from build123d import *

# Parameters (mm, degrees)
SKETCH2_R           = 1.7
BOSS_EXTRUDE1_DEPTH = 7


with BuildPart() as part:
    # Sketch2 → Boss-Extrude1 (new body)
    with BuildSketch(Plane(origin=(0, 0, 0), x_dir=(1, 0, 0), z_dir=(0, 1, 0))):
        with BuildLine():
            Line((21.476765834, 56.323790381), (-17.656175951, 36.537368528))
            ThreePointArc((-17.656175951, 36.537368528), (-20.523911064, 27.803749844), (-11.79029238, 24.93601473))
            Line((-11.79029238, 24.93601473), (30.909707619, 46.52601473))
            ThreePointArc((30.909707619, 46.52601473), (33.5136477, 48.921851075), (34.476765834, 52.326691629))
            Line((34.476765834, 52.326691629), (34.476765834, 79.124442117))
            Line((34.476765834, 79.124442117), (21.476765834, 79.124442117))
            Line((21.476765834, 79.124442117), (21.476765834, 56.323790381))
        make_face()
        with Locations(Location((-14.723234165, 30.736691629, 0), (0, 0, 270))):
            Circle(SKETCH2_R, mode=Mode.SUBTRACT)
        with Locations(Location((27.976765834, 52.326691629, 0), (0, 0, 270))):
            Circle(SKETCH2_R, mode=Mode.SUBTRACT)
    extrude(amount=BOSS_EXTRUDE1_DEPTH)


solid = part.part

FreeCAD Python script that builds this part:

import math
import FreeCAD as App
import Part
import Sketcher

V = App.Vector
Q = App.Units.Quantity

doc = App.newDocument("Part")
body = doc.addObject("PartDesign::Body", "Body")

# Sketch on XZ plane
sketch1 = doc.addObject("Sketcher::SketchObject", "Sketch")
body.addObject(sketch1)
sketch1.AttachmentSupport = (doc.XZ_Plane, [""])
sketch1.MapMode = "FlatFace"
sketch1.addGeometry([
    Part.LineSegment(V(21.5, -56.3, 0), V(-17.7, -36.5, 0)),  # 0
    Part.ArcOfCircle(Part.Circle(V(-14.7, -30.7, 0), V(0, 0, 1), 6.5), math.radians(63), math.radians(243)),  # 1
    Part.LineSegment(V(-11.8, -24.9, 0), V(30.9, -46.5, 0)),  # 2
    Part.ArcOfCircle(Part.Circle(V(28, -52.3, 0), V(0, 0, 1), 6.5), math.radians(0), math.radians(63)),  # 3
    Part.LineSegment(V(34.5, -52.3, 0), V(34.5, -79.1, 0)),  # 4
    Part.LineSegment(V(34.5, -79.1, 0), V(21.5, -79.1, 0)),  # 5
    Part.LineSegment(V(21.5, -79.1, 0), V(21.5, -56.3, 0)),  # 6
    Part.Circle(V(-14.7, -30.7, 0), V(0, 0, 1), 1.7),  # 7
    Part.Circle(V(28, -52.3, 0), V(0, 0, 1), 1.7),  # 8
], False)
sketch1.addConstraint([
    Sketcher.Constraint("Tangent", 0, 2, 1, 2),
    Sketcher.Constraint("Tangent", 1, 1, 2, 1),
    Sketcher.Constraint("Tangent", 2, 2, 3, 2),
    Sketcher.Constraint("Tangent", 3, 1, 4, 1),
    Sketcher.Constraint("Coincident", 4, 2, 5, 1),
    Sketcher.Constraint("Coincident", 5, 2, 6, 1),
    Sketcher.Constraint("Coincident", 6, 2, 0, 1),
    Sketcher.Constraint("Vertical", 4),
    Sketcher.Constraint("Horizontal", 5),
    Sketcher.Constraint("Vertical", 6),
    Sketcher.Constraint("Coincident", 7, 3, 1, 3),
    Sketcher.Constraint("Coincident", 8, 3, 3, 3),
    Sketcher.Constraint("Equal", 1, 3),
    Sketcher.Constraint("Equal", 7, 8),
    Sketcher.Constraint("Parallel", 0, 2),
    Sketcher.Constraint("Diameter", 7, Q("3.4 mm")),
    Sketcher.Constraint("Radius", 1, Q("6.5 mm")),
    Sketcher.Constraint("DistanceX", 5, 2, 5, 1, Q("13 mm")),
    Sketcher.Constraint("DistanceX", 1, 3, 3, 3, Q("42.7 mm")),
    Sketcher.Constraint("DistanceY", 3, 3, 1, 3, Q("21.59 mm")),
    Sketcher.Constraint("DistanceY", 4, 2, 4, 1, Q("26.79775 mm")),
    Sketcher.Constraint("DistanceY", 1, 3, -1, 1, Q("30.736692 mm")),
    Sketcher.Constraint("DistanceX", 1, 3, -1, 1, Q("14.723234 mm")),
])
pad1 = doc.addObject("PartDesign::Pad", "Pad")
body.addObject(pad1)
pad1.Profile = sketch1
pad1.Length = 7
pad1.Reversed = True

doc.recompute()
